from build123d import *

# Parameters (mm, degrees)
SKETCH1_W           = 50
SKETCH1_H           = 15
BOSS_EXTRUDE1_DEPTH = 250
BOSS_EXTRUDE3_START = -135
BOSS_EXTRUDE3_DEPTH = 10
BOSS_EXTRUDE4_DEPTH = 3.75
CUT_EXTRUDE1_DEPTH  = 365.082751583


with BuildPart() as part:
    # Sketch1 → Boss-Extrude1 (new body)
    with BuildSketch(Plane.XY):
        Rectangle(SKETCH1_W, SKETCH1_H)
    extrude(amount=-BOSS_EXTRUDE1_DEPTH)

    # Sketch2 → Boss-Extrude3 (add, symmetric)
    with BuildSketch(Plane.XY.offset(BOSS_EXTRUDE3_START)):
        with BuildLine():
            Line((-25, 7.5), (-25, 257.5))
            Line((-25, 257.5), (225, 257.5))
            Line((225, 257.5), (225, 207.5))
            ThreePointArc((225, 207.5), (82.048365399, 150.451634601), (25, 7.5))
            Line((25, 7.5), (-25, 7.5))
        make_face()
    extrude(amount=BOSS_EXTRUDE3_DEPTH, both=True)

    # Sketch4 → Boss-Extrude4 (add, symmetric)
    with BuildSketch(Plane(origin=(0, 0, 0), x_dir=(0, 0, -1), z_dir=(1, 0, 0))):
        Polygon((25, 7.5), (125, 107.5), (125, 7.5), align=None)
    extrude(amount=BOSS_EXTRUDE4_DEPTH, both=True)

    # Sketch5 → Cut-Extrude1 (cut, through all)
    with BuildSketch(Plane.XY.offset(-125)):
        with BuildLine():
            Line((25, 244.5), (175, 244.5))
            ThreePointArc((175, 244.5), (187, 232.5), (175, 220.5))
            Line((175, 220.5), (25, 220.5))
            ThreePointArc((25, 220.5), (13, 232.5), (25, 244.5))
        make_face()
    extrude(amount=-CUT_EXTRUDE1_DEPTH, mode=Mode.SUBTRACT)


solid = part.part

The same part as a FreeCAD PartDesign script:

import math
import FreeCAD as App
import Part
import Sketcher


def add_polygon(sketch, points):
    """Adds a closed chain of lines whose ends are joined by coincident constraints."""
    first, n = sketch.GeometryCount, len(points)
    for a, b in zip(points, points[1:] + points[:1]):
        sketch.addGeometry(Part.LineSegment(App.Vector(*a, 0), App.Vector(*b, 0)), False)
    for i in range(n):
        sketch.addConstraint(Sketcher.Constraint("Coincident", first + i, 2, first + (i + 1) % n, 1))

doc = App.newDocument("Part")
body = doc.addObject("PartDesign::Body", "Body")

# Sketch on XY plane
sketch1 = body.newObject("Sketcher::SketchObject", "Sketch")
sketch1.AttachmentSupport = (doc.getObject("XY_Plane"), [""])
sketch1.MapMode = "FlatFace"
add_polygon(sketch1, [(-25, 7.5), (-25, -7.5), (25, -7.5), (25, 7.5)])  # lines 0-3
sketch1.addConstraint([
    Sketcher.Constraint("Vertical", 0),
    Sketcher.Constraint("Horizontal", 1),
    Sketcher.Constraint("Vertical", 2),
    Sketcher.Constraint("Horizontal", 3),
    Sketcher.Constraint("Symmetric", 0, 2, 2, 2, -1, 1),
    Sketcher.Constraint("DistanceX", 1, 1, 1, 2, 50.0),
    Sketcher.Constraint("DistanceY", 0, 2, 0, 1, 15.0),
])
pad1 = body.newObject("PartDesign::Pad", "Pad")
pad1.Profile = sketch1
pad1.Length = 250
pad1.Reversed = True

# Sketch on XY plane
sketch2 = body.newObject("Sketcher::SketchObject", "Sketch001")
sketch2.AttachmentSupport = (doc.getObject("XY_Plane"), [""])
sketch2.MapMode = "FlatFace"
sketch2.AttachmentOffset = App.Placement(App.Vector(0, 0, -135), App.Rotation())
sketch2.addGeometry([
    Part.LineSegment(App.Vector(-25, 257.5, 0), App.Vector(-25, 7.5, 0)),  # 0
    Part.LineSegment(App.Vector(-25, 7.5, 0), App.Vector(25, 7.5, 0)),  # 1
    Part.ArcOfCircle(Part.Circle(App.Vector(219.934188, 12.565812, 0), App.Vector(0, 0, 1), 195), math.radians(88.511373), math.radians(181.488627)),  # 2
    Part.LineSegment(App.Vector(225, 207.5, 0), App.Vector(225, 257.5, 0)),  # 3
    Part.LineSegment(App.Vector(225, 257.5, 0), App.Vector(-25, 257.5, 0)),  # 4
], False)
sketch2.addConstraint([
    Sketcher.Constraint("Coincident", 0, 2, 1, 1),
    Sketcher.Constraint("Coincident", 1, 2, 2, 2),
    Sketcher.Constraint("Coincident", 2, 1, 3, 1),
    Sketcher.Constraint("Coincident", 3, 2, 4, 1),
    Sketcher.Constraint("Coincident", 4, 2, 0, 1),
    Sketcher.Constraint("Vertical", 0),
    Sketcher.Constraint("Horizontal", 1),
    Sketcher.Constraint("Vertical", 3),
    Sketcher.Constraint("Horizontal", 4),
    Sketcher.Constraint("Equal", 4, 0),
    Sketcher.Constraint("Equal", 1, 3),
    Sketcher.Constraint("Radius", 2, 195.0),
    Sketcher.Constraint("DistanceX", 1, 1, 1, 2, 50.0),
    Sketcher.Constraint("DistanceX", 4, 2, 4, 1, 250.0),
    Sketcher.Constraint("DistanceX", 0, 2, -1, 1, 25.0),
    Sketcher.Constraint("DistanceY", -1, 1, 0, 2, 7.5),
])
pad2 = body.newObject("PartDesign::Pad", "Pad001")
pad2.Profile = sketch2
pad2.Length = 20
pad2.Midplane = True

# Sketch on YZ plane
sketch3 = body.newObject("Sketcher::SketchObject", "Sketch002")
sketch3.AttachmentSupport = (doc.getObject("YZ_Plane"), [""])
sketch3.MapMode = "FlatFace"
add_polygon(sketch3, [(107.5, -125), (7.5, -25), (7.5, -125)])  # lines 0-2
sketch3.addConstraint([
    Sketcher.Constraint("Vertical", 1),
    Sketcher.Constraint("Horizontal", 2),
    Sketcher.Constraint("Equal", 2, 1),
    Sketcher.Constraint("DistanceX", 2, 1, 2, 2, 100.0),
    Sketcher.Constraint("DistanceY", 0, 2, -1, 1, 25.0),
    Sketcher.Constraint("DistanceX", -1, 1, 0, 2, 7.5),
])
pad3 = body.newObject("PartDesign::Pad", "Pad002")
pad3.Profile = sketch3
pad3.Length = 7.5
pad3.Midplane = True

# Sketch on XY plane
sketch4 = body.newObject("Sketcher::SketchObject", "Sketch003")
sketch4.AttachmentSupport = (doc.getObject("XY_Plane"), [""])
sketch4.MapMode = "FlatFace"
sketch4.AttachmentOffset = App.Placement(App.Vector(0, 0, -125), App.Rotation())
sketch4.addGeometry([
    Part.LineSegment(App.Vector(175, 244.5, 0), App.Vector(25, 244.5, 0)),
    Part.ArcOfCircle(Part.Circle(App.Vector(25, 232.5, 0), App.Vector(0, 0, 1), 12), math.radians(90), math.radians(270)),
    Part.LineSegment(App.Vector(25, 220.5, 0), App.Vector(175, 220.5, 0)),
    Part.ArcOfCircle(Part.Circle(App.Vector(175, 232.5, 0), App.Vector(0, 0, 1), 12), math.radians(-90), math.radians(90)),
], False)
sketch4.addConstraint([
    Sketcher.Constraint("Tangent", 0, 2, 1, 1),
    Sketcher.Constraint("Tangent", 1, 2, 2, 1),
    Sketcher.Constraint("Tangent", 2, 2, 3, 1),
    Sketcher.Constraint("Tangent", 3, 2, 0, 1),
    Sketcher.Constraint("Horizontal", 0),
    Sketcher.Constraint("Horizontal", 2),
    Sketcher.Constraint("Radius", 1, 12.0),
    Sketcher.Constraint("DistanceX", 0, 2, 0, 1, 150.0),
    Sketcher.Constraint("DistanceX", -1, 1, 1, 3, 25.0),
    Sketcher.Constraint("DistanceY", -1, 1, 1, 3, 232.5),
])
pocket1 = body.newObject("PartDesign::Pocket", "Pocket")
pocket1.Profile = sketch4
pocket1.Type = "ThroughAll"

doc.recompute()
